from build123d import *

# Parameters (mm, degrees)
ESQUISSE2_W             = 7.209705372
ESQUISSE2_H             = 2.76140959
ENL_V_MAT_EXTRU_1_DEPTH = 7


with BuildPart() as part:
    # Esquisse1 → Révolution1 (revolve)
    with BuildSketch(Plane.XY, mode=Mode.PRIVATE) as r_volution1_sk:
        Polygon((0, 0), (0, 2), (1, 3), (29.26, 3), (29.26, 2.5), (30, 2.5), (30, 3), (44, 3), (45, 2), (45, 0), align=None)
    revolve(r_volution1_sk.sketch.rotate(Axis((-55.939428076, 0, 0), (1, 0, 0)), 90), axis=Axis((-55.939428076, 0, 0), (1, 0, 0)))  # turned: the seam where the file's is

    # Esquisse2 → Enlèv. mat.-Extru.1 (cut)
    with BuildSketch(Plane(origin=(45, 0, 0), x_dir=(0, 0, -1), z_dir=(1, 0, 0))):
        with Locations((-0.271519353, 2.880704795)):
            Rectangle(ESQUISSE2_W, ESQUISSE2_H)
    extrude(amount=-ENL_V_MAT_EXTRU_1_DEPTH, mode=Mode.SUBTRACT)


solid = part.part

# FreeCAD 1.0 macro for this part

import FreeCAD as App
import Part
import Sketcher
Q = App.Units.Quantity

doc = App.newDocument("Part")
params = doc.addObject("Spreadsheet::Sheet", "Params")
for row, (alias, value) in enumerate([
    ("sketch1_width", "45 mm"),
    ("sketch1_width2", "14 mm"),
    ("sketch1_height", "2 mm"),
    ("sketch1_height2", "0.5 mm"),
    ("sketch1_width3", "0.74 mm"),
    ("revolution_angle", "360 deg"),
    ("pocket1_length", "7 mm"),
], start=1):
    params.set(f"A{row}", alias)
    params.set(f"B{row}", "=" + value)
    params.setAlias(f"B{row}", alias)

body = doc.addObject("PartDesign::Body", "Body")

# Sketch on XY plane
sketch1 = body.newObject("Sketcher::SketchObject", "Sketch")
sketch1.AttachmentSupport = (doc.getObject("XY_Plane"), [""])
sketch1.MapMode = "FlatFace"
sketch1.addGeometry([
    Part.LineSegment(App.Vector(0, 2, 0), App.Vector(0, 0, 0)),  # 0
    Part.LineSegment(App.Vector(0, 0, 0), App.Vector(45, 0, 0)),  # 1
    Part.LineSegment(App.Vector(45, 0, 0), App.Vector(45, 2, 0)),  # 2
    Part.LineSegment(App.Vector(45, 2, 0), App.Vector(44, 3, 0)),  # 3
    Part.LineSegment(App.Vector(44, 3, 0), App.Vector(30, 3, 0)),  # 4
    Part.LineSegment(App.Vector(30, 3, 0), App.Vector(30, 2.5, 0)),  # 5
    Part.LineSegment(App.Vector(30, 2.5, 0), App.Vector(29.3, 2.5, 0)),  # 6
    Part.LineSegment(App.Vector(29.3, 2.5, 0), App.Vector(29.3, 3, 0)),  # 7
    Part.LineSegment(App.Vector(29.3, 3, 0), App.Vector(1, 3, 0)),  # 8
    Part.LineSegment(App.Vector(1, 3, 0), App.Vector(0, 2, 0)),  # 9
], False)
sketch1.addConstraint([
    Sketcher.Constraint("Coincident", 0, 2, 1, 1),
    Sketcher.Constraint("Coincident", 1, 2, 2, 1),
    Sketcher.Constraint("Coincident", 2, 2, 3, 1),
    Sketcher.Constraint("Coincident", 3, 2, 4, 1),
    Sketcher.Constraint("Coincident", 4, 2, 5, 1),
    Sketcher.Constraint("Coincident", 5, 2, 6, 1),
    Sketcher.Constraint("Coincident", 6, 2, 7, 1),
    Sketcher.Constraint("Coincident", 7, 2, 8, 1),
    Sketcher.Constraint("Coincident", 8, 2, 9, 1),
    Sketcher.Constraint("Coincident", 9, 2, 0, 1),
    Sketcher.Constraint("Vertical", 0),
    Sketcher.Constraint("Horizontal", 1),
    Sketcher.Constraint("Vertical", 2),
    Sketcher.Constraint("Horizontal", 4),
    Sketcher.Constraint("Vertical", 5),
    Sketcher.Constraint("Horizontal", 6),
    Sketcher.Constraint("Vertical", 7),
    Sketcher.Constraint("Horizontal", 8),
    Sketcher.Constraint("Coincident", 0, 2, -1, 1),
    Sketcher.Constraint("Perpendicular", 3, 9),
    Sketcher.Constraint("Horizontal", 4, 2, 7, 2),
    Sketcher.Constraint("Horizontal", 2, 2, 9, 2),
    Sketcher.Constraint("Equal", 3, 9),
    Sketcher.Constraint("DistanceX", 1, 1, 1, 2, Q("45 mm")),
    Sketcher.Constraint("DistanceX", 4, 2, 4, 1, Q("14 mm")),
    Sketcher.Constraint("DistanceY", 0, 2, 0, 1, Q("2 mm")),
    Sketcher.Constraint("DistanceY", 5, 2, 5, 1, Q("0.5 mm")),
    Sketcher.Constraint("DistanceX", -1, 1, 3, 2, Q("44 mm")),
    Sketcher.Constraint("DistanceX", 6, 2, 6, 1, Q("0.74 mm")),
])
sketch1.setExpression("Constraints[23]", "Params.sketch1_width")
sketch1.setExpression("Constraints[24]", "Params.sketch1_width2")
sketch1.setExpression("Constraints[25]", "Params.sketch1_height")
sketch1.setExpression("Constraints[26]", "Params.sketch1_height2")
sketch1.setExpression("Constraints[28]", "Params.sketch1_width3")
revolution = body.newObject("PartDesign::Revolution", "Revolution")
revolution.Profile = sketch1
revolution.ReferenceAxis = (sketch1, ["H_Axis"])
revolution.setExpression("Angle", "Params.revolution_angle")

# Sketch on YZ plane
sketch2 = body.newObject("Sketcher::SketchObject", "Sketch001")
sketch2.AttachmentSupport = (doc.getObject("YZ_Plane"), [""])
sketch2.MapMode = "FlatFace"
sketch2.AttachmentOffset = App.Placement(App.Vector(0, 0, 45), App.Rotation())
sketch2.addGeometry([
    Part.LineSegment(App.Vector(4.3, 3.9, 0), App.Vector(1.5, 3.9, 0)),
    Part.LineSegment(App.Vector(1.5, 3.9, 0), App.Vector(1.5, -3.3, 0)),
    Part.LineSegment(App.Vector(1.5, -3.3, 0), App.Vector(4.3, -3.3, 0)),
    Part.LineSegment(App.Vector(4.3, -3.3, 0), App.Vector(4.3, 3.9, 0)),
], False)
sketch2.addConstraint([
    Sketcher.Constraint("Coincident", 0, 2, 1, 1),
    Sketcher.Constraint("Coincident", 1, 2, 2, 1),
    Sketcher.Constraint("Coincident", 2, 2, 3, 1),
    Sketcher.Constraint("Coincident", 3, 2, 0, 1),
    Sketcher.Constraint("Horizontal", 0),
    Sketcher.Constraint("Vertical", 1),
    Sketcher.Constraint("Horizontal", 2),
    Sketcher.Constraint("Vertical", 3),
    Sketcher.Constraint("DistanceX", -1, 1, 0, 2, Q("1.5 mm")),
    Sketcher.Constraint("DistanceX", 0, 2, 0, 1, Q("2.76141 mm")),
    Sketcher.Constraint("DistanceY", 1, 2, 1, 1, Q("7.209705 mm")),
    Sketcher.Constraint("DistanceY", -1, 1, 0, 2, Q("3.876372 mm")),
])
pocket1 = body.newObject("PartDesign::Pocket", "Pocket")
pocket1.Profile = sketch2
pocket1.setExpression("Length", "Params.pocket1_length")

doc.recompute()
